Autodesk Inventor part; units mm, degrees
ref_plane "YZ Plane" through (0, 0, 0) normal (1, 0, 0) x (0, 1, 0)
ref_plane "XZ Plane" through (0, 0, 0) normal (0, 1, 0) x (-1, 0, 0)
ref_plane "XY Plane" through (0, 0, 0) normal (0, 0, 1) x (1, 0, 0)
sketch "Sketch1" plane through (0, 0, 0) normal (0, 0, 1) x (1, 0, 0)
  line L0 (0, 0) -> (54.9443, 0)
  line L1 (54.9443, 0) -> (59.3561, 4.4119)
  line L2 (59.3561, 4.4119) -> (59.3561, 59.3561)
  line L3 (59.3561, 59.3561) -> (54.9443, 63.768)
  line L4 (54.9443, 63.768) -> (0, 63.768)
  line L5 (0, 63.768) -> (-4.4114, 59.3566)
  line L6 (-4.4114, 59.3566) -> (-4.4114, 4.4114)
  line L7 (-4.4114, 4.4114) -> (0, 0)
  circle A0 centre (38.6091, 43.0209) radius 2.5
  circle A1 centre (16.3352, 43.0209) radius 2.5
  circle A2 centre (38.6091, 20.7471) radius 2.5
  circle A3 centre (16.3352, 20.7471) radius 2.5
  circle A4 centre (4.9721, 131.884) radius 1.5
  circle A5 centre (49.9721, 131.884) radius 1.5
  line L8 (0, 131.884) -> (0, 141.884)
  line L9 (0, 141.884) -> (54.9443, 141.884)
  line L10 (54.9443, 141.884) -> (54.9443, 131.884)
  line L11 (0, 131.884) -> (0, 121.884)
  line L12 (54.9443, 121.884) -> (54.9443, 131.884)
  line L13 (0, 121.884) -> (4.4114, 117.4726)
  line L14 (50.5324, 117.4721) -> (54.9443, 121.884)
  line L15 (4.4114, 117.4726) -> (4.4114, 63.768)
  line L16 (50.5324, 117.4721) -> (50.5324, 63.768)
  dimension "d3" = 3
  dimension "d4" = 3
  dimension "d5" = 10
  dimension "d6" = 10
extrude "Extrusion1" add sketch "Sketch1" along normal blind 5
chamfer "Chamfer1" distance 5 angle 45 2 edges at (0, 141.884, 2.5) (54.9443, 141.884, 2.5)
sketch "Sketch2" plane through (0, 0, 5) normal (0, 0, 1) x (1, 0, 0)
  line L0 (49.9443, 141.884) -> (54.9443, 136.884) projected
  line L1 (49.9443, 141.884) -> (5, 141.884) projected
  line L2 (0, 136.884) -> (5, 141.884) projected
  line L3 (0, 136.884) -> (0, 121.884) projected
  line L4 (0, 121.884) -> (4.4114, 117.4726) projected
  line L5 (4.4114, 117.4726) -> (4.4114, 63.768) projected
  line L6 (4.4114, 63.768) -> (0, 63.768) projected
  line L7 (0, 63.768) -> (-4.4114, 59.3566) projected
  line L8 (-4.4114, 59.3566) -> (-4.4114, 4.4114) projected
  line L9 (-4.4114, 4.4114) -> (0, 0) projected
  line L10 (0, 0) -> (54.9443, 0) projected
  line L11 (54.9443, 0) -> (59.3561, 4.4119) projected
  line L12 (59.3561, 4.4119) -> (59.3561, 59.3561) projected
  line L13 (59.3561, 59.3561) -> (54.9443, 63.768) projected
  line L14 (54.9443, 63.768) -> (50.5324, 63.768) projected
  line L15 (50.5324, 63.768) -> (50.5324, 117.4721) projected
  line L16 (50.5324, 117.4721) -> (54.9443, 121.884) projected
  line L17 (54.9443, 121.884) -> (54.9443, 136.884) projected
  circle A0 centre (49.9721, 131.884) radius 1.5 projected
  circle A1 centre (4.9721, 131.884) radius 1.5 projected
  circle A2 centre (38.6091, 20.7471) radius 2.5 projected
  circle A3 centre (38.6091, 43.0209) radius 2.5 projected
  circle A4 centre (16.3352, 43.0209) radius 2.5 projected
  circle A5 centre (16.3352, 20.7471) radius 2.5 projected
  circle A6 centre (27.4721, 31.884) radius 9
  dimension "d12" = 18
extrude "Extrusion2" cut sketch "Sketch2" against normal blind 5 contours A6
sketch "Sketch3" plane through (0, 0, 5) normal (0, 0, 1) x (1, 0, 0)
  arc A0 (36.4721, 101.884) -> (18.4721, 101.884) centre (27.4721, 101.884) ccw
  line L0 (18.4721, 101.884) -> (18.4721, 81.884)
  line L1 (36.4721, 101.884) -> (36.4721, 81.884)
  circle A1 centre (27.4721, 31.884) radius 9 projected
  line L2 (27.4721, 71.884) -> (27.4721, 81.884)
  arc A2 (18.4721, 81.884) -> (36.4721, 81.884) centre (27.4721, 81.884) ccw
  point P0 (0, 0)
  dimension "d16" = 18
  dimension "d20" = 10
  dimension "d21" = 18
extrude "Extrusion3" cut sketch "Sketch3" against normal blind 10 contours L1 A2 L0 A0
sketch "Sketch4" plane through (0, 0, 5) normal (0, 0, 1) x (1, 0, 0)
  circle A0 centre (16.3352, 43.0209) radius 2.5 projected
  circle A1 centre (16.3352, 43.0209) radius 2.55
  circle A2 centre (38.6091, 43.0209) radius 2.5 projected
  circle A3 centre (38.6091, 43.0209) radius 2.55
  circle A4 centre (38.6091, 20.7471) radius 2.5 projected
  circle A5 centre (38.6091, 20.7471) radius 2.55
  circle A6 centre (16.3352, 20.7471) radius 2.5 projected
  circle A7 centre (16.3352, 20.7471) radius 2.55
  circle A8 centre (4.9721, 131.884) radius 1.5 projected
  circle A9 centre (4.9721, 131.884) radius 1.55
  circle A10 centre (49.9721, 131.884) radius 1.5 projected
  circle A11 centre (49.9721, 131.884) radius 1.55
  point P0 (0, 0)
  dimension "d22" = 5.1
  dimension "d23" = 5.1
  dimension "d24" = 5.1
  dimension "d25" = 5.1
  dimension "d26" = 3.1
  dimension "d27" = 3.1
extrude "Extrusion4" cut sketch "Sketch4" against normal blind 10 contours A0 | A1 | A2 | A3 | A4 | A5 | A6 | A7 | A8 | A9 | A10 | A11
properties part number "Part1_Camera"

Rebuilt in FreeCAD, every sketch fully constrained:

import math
import FreeCAD as App
import Part
import Sketcher
from FreeCAD import Vector
Q = App.Units.Quantity


def edges_at(feature, points):
    """Names of the edges that pass closest to the given points."""
    edges = feature.Shape.Edges
    near = lambda p: min(range(len(edges)), key=lambda i: edges[i].distToShape(Part.Vertex(*p))[0])
    return sorted({f"Edge{near(p) + 1}" for p in points})

doc = App.newDocument("Part")
body = doc.addObject("PartDesign::Body", "Body")

sketch1 = body.newObject("Sketcher::SketchObject", "Sketch")
sketch1.AttachmentSupport = (doc.getObject("XY_Plane"), [""])
sketch1.MapMode = "FlatFace"
sketch1.addGeometry(Part.LineSegment(Vector(-4.4, 4.4, 0), Vector(0, 0, 0)), False)
sketch1.addGeometry(Part.LineSegment(Vector(0, 0, 0), Vector(54.9, 0, 0)), False)
sketch1.addGeometry(Part.LineSegment(Vector(54.9, 0, 0), Vector(59.4, 4.4, 0)), False)
sketch1.addGeometry(Part.LineSegment(Vector(59.4, 4.4, 0), Vector(59.4, 59.4, 0)), False)
sketch1.addGeometry(Part.LineSegment(Vector(59.4, 59.4, 0), Vector(54.9, 63.8, 0)), False)
sketch1.addGeometry(Part.LineSegment(Vector(54.9, 63.8, 0), Vector(50.5, 63.8, 0)), False)
sketch1.addGeometry(Part.LineSegment(Vector(50.5, 63.8, 0), Vector(50.5, 117.5, 0)), False)
sketch1.addGeometry(Part.LineSegment(Vector(50.5, 117.5, 0), Vector(54.9, 121.9, 0)), False)
sketch1.addGeometry(Part.LineSegment(Vector(54.9, 121.9, 0), Vector(54.9, 141.9, 0)), False)
sketch1.addGeometry(Part.LineSegment(Vector(54.9, 141.9, 0), Vector(0, 141.9, 0)), False)
sketch1.addGeometry(Part.LineSegment(Vector(0, 141.9, 0), Vector(0, 121.9, 0)), False)
sketch1.addGeometry(Part.LineSegment(Vector(0, 121.9, 0), Vector(4.4, 117.5, 0)), False)
sketch1.addGeometry(Part.LineSegment(Vector(4.4, 117.5, 0), Vector(4.4, 63.8, 0)), False)
sketch1.addGeometry(Part.LineSegment(Vector(4.4, 63.8, 0), Vector(0, 63.8, 0)), False)
sketch1.addGeometry(Part.LineSegment(Vector(0, 63.8, 0), Vector(-4.4, 59.4, 0)), False)
sketch1.addGeometry(Part.LineSegment(Vector(-4.4, 59.4, 0), Vector(-4.4, 4.4, 0)), False)
sketch1.addGeometry(Part.Circle(Vector(16.3, 20.7, 0), Vector(0, 0, 1), 2.5), False)
sketch1.addGeometry(Part.Circle(Vector(16.3, 43, 0), Vector(0, 0, 1), 2.5), False)
sketch1.addGeometry(Part.Circle(Vector(38.6, 20.7, 0), Vector(0, 0, 1), 2.5), False)
sketch1.addGeometry(Part.Circle(Vector(38.6, 43, 0), Vector(0, 0, 1), 2.5), False)
sketch1.addGeometry(Part.Circle(Vector(50, 131.9, 0), Vector(0, 0, 1), 1.5), False)
sketch1.addGeometry(Part.Circle(Vector(5, 131.9, 0), Vector(0, 0, 1), 1.5), False)
sketch1.addConstraint(Sketcher.Constraint("Coincident", 0, 2, 1, 1))
sketch1.addConstraint(Sketcher.Constraint("Coincident", 1, 2, 2, 1))
sketch1.addConstraint(Sketcher.Constraint("Coincident", 2, 2, 3, 1))
sketch1.addConstraint(Sketcher.Constraint("Coincident", 3, 2, 4, 1))
sketch1.addConstraint(Sketcher.Constraint("Coincident", 4, 2, 5, 1))
sketch1.addConstraint(Sketcher.Constraint("Coincident", 5, 2, 6, 1))
sketch1.addConstraint(Sketcher.Constraint("Coincident", 6, 2, 7, 1))
sketch1.addConstraint(Sketcher.Constraint("Coincident", 7, 2, 8, 1))
sketch1.addConstraint(Sketcher.Constraint("Coincident", 8, 2, 9, 1))
sketch1.addConstraint(Sketcher.Constraint("Coincident", 9, 2, 10, 1))
sketch1.addConstraint(Sketcher.Constraint("Coincident", 10, 2, 11, 1))
sketch1.addConstraint(Sketcher.Constraint("Coincident", 11, 2, 12, 1))
sketch1.addConstraint(Sketcher.Constraint("Coincident", 12, 2, 13, 1))
sketch1.addConstraint(Sketcher.Constraint("Coincident", 13, 2, 14, 1))
sketch1.addConstraint(Sketcher.Constraint("Coincident", 14, 2, 15, 1))
sketch1.addConstraint(Sketcher.Constraint("Coincident", 15, 2, 0, 1))
sketch1.addConstraint(Sketcher.Constraint("Horizontal", 1))
sketch1.addConstraint(Sketcher.Constraint("Vertical", 3))
sketch1.addConstraint(Sketcher.Constraint("Horizontal", 5))
sketch1.addConstraint(Sketcher.Constraint("Vertical", 6))
sketch1.addConstraint(Sketcher.Constraint("Vertical", 8))
sketch1.addConstraint(Sketcher.Constraint("Horizontal", 9))
sketch1.addConstraint(Sketcher.Constraint("Vertical", 10))
sketch1.addConstraint(Sketcher.Constraint("Vertical", 12))
sketch1.addConstraint(Sketcher.Constraint("Horizontal", 13))
sketch1.addConstraint(Sketcher.Constraint("Vertical", 15))
sketch1.addConstraint(Sketcher.Constraint("Coincident", 0, 2, -1, 1))
sketch1.addConstraint(Sketcher.Constraint("Equal", 16, 17))
sketch1.addConstraint(Sketcher.Constraint("Equal", 17, 18))
sketch1.addConstraint(Sketcher.Constraint("Equal", 18, 19))
sketch1.addConstraint(Sketcher.Constraint("Equal", 20, 21))
sketch1.addConstraint(Sketcher.Constraint("PointOnObject", 9, 2, -2))
sketch1.addConstraint(Sketcher.Constraint("PointOnObject", 13, 2, -2))
sketch1.addConstraint(Sketcher.Constraint("Perpendicular", 0, 2))
sketch1.addConstraint(Sketcher.Constraint("Perpendicular", 2, 4))
sketch1.addConstraint(Sketcher.Constraint("Perpendicular", 4, 7))
sketch1.addConstraint(Sketcher.Constraint("Perpendicular", 7, 11))
sketch1.addConstraint(Sketcher.Constraint("Perpendicular", 11, 14))
sketch1.addConstraint(Sketcher.Constraint("Horizontal", 16, 3, 18, 3))
sketch1.addConstraint(Sketcher.Constraint("Horizontal", 17, 3, 19, 3))
sketch1.addConstraint(Sketcher.Constraint("Horizontal", 20, 3, 21, 3))
sketch1.addConstraint(Sketcher.Constraint("Horizontal", 7, 2, 10, 2))
sketch1.addConstraint(Sketcher.Constraint("Horizontal", 5, 2, 12, 2))
sketch1.addConstraint(Sketcher.Constraint("Vertical", 16, 3, 17, 3))
sketch1.addConstraint(Sketcher.Constraint("Vertical", 18, 3, 19, 3))
sketch1.addConstraint(Sketcher.Constraint("Vertical", 1, 2, 4, 2))
sketch1.addConstraint(Sketcher.Constraint("Vertical", 4, 2, 7, 2))
sketch1.addConstraint(Sketcher.Constraint("Equal", 9, 3))
sketch1.addConstraint(Sketcher.Constraint("Equal", 2, 4))
sketch1.addConstraint(Sketcher.Constraint("Equal", 4, 7))
sketch1.addConstraint(Sketcher.Constraint("Equal", 0, 11))
sketch1.addConstraint(Sketcher.Constraint("Diameter", 20, Q("3 mm")))
sketch1.addConstraint(Sketcher.Constraint("Diameter", 16, Q("5 mm")))
sketch1.addConstraint(Sketcher.Constraint("DistanceY", 7, 2, 20, 3, Q("10 mm")))
sketch1.addConstraint(Sketcher.Constraint("DistanceY", 20, 3, 8, 2, Q("10 mm")))
sketch1.addConstraint(Sketcher.Constraint("DistanceX", 21, 3, 20, 3, Q("45 mm")))
sketch1.addConstraint(Sketcher.Constraint("DistanceX", 5, 2, 5, 1, Q("4.412 mm")))
sketch1.addConstraint(Sketcher.Constraint("DistanceY", 6, 1, 6, 2, Q("53.704 mm")))
sketch1.addConstraint(Sketcher.Constraint("DistanceX", 1, 1, 1, 2, Q("54.9443 mm")))
sketch1.addConstraint(Sketcher.Constraint("DistanceX", 13, 2, 13, 1, Q("4.4114 mm")))
sketch1.addConstraint(Sketcher.Constraint("DistanceY", -1, 1, 16, 3, Q("20.747 mm")))
sketch1.addConstraint(Sketcher.Constraint("DistanceY", -1, 1, 17, 3, Q("43.021 mm")))
sketch1.addConstraint(Sketcher.Constraint("DistanceX", -1, 1, 18, 3, Q("38.609 mm")))
sketch1.addConstraint(Sketcher.Constraint("DistanceX", -1, 1, 20, 3, Q("49.972 mm")))
sketch1.addConstraint(Sketcher.Constraint("DistanceX", 16, 3, 18, 3, Q("22.274 mm")))
pad1 = body.newObject("PartDesign::Pad", "Pad")
pad1.Profile = sketch1
pad1.Length = 5
doc.recompute()

chamfer = body.newObject("PartDesign::Chamfer", "Chamfer")
chamfer.Base = (pad1, edges_at(pad1, [(0, 141.884, 2.5), (54.944, 141.884, 2.5)]))
chamfer.Size = 5

sketch2 = body.newObject("Sketcher::SketchObject", "Sketch001")
sketch2.AttachmentSupport = (doc.getObject("XY_Plane"), [""])
sketch2.MapMode = "FlatFace"
sketch2.AttachmentOffset = App.Placement(Vector(0, 0, 5), App.Rotation())
sketch2.addGeometry(Part.Circle(Vector(27, 32, 0), Vector(0, 0, 1), 9), False)
sketch2.addConstraint(Sketcher.Constraint("Diameter", 0, Q("18 mm")))
sketch2.addConstraint(Sketcher.Constraint("DistanceX", -1, 1, 0, 3, Q("27.472 mm")))
sketch2.addConstraint(Sketcher.Constraint("DistanceY", -1, 1, 0, 3, Q("31.884 mm")))
pocket1 = body.newObject("PartDesign::Pocket", "Pocket")
pocket1.Profile = sketch2
pocket1.Length = 5

sketch3 = body.newObject("Sketcher::SketchObject", "Sketch002")
sketch3.AttachmentSupport = (doc.getObject("XY_Plane"), [""])
sketch3.MapMode = "FlatFace"
sketch3.AttachmentOffset = App.Placement(Vector(0, 0, 5), App.Rotation())
sketch3.addGeometry(Part.LineSegment(Vector(36, 82, 0), Vector(36, 102, 0)), False)
sketch3.addGeometry(Part.ArcOfCircle(Part.Circle(Vector(27, 102, 0), Vector(0, 0, 1), 9), math.radians(0), math.radians(180)), False)
sketch3.addGeometry(Part.LineSegment(Vector(18, 102, 0), Vector(18, 82, 0)), False)
sketch3.addGeometry(Part.ArcOfCircle(Part.Circle(Vector(27, 82, 0), Vector(0, 0, 1), 9), math.radians(180), math.radians(360)), False)
sketch3.addConstraint(Sketcher.Constraint("Tangent", 0, 2, 1, 1))
sketch3.addConstraint(Sketcher.Constraint("Tangent", 1, 2, 2, 1))
sketch3.addConstraint(Sketcher.Constraint("Tangent", 2, 2, 3, 1))
sketch3.addConstraint(Sketcher.Constraint("Tangent", 3, 2, 0, 1))
sketch3.addConstraint(Sketcher.Constraint("Vertical", 0))
sketch3.addConstraint(Sketcher.Constraint("Vertical", 2))
sketch3.addConstraint(Sketcher.Constraint("Radius", 1, Q("9 mm")))
sketch3.addConstraint(Sketcher.Constraint("DistanceY", 0, 1, 0, 2, Q("20 mm")))
sketch3.addConstraint(Sketcher.Constraint("DistanceX", -1, 1, 1, 3, Q("27.472 mm")))
sketch3.addConstraint(Sketcher.Constraint("DistanceY", -1, 1, 1, 3, Q("101.884 mm")))
pocket2 = body.newObject("PartDesign::Pocket", "Pocket001")
pocket2.Profile = sketch3
pocket2.Length = 10

sketch4 = body.newObject("Sketcher::SketchObject", "Sketch003")
sketch4.AttachmentSupport = (doc.getObject("XY_Plane"), [""])
sketch4.MapMode = "FlatFace"
sketch4.AttachmentOffset = App.Placement(Vector(0, 0, 5), App.Rotation())
sketch4.addGeometry(Part.Circle(Vector(16.3, 43, 0), Vector(0, 0, 1), 2.5), False)
sketch4.addGeometry(Part.Circle(Vector(38.6, 43, 0), Vector(0, 0, 1), 2.5), False)
sketch4.addGeometry(Part.Circle(Vector(38.6, 20.7, 0), Vector(0, 0, 1), 2.5), False)
sketch4.addGeometry(Part.Circle(Vector(16.3, 20.7, 0), Vector(0, 0, 1), 2.5), False)
sketch4.addGeometry(Part.Circle(Vector(5, 131.9, 0), Vector(0, 0, 1), 1.6), False)
sketch4.addGeometry(Part.Circle(Vector(50, 131.9, 0), Vector(0, 0, 1), 1.6), False)
sketch4.addConstraint(Sketcher.Constraint("Equal", 0, 1))
sketch4.addConstraint(Sketcher.Constraint("Equal", 1, 2))
sketch4.addConstraint(Sketcher.Constraint("Equal", 2, 3))
sketch4.addConstraint(Sketcher.Constraint("Equal", 4, 5))
sketch4.addConstraint(Sketcher.Constraint("Horizontal", 0, 3, 1, 3))
sketch4.addConstraint(Sketcher.Constraint("Horizontal", 2, 3, 3, 3))
sketch4.addConstraint(Sketcher.Constraint("Horizontal", 4, 3, 5, 3))
sketch4.addConstraint(Sketcher.Constraint("Vertical", 1, 3, 2, 3))
sketch4.addConstraint(Sketcher.Constraint("Vertical", 0, 3, 3, 3))
sketch4.addConstraint(Sketcher.Constraint("Diameter", 0, Q("5.1 mm")))
sketch4.addConstraint(Sketcher.Constraint("Diameter", 4, Q("3.1 mm")))
sketch4.addConstraint(Sketcher.Constraint("DistanceX", 4, 3, 5, 3, Q("45 mm")))
sketch4.addConstraint(Sketcher.Constraint("DistanceY", -1, 1, 0, 3, Q("43.021 mm")))
sketch4.addConstraint(Sketcher.Constraint("DistanceX", -1, 1, 1, 3, Q("38.609 mm")))
sketch4.addConstraint(Sketcher.Constraint("DistanceY", -1, 1, 2, 3, Q("20.747 mm")))
sketch4.addConstraint(Sketcher.Constraint("DistanceX", -1, 1, 4, 3, Q("4.972 mm")))
sketch4.addConstraint(Sketcher.Constraint("DistanceY", -1, 1, 4, 3, Q("131.884 mm")))
sketch4.addConstraint(Sketcher.Constraint("DistanceX", 0, 3, 1, 3, Q("22.274 mm")))
pocket3 = body.newObject("PartDesign::Pocket", "Pocket002")
pocket3.Profile = sketch4
pocket3.Length = 10

doc.recompute()
